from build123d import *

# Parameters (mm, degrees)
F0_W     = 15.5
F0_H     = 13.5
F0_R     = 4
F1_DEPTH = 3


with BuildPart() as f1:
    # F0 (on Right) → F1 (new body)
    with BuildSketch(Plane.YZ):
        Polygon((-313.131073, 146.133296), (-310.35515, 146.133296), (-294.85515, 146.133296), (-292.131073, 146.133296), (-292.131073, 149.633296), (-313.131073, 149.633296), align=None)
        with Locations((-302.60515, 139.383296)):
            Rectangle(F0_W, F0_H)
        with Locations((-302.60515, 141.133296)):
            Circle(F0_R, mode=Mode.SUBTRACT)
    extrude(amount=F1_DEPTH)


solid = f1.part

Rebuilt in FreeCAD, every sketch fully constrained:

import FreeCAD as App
import Part
import Sketcher
from FreeCAD import Vector


def add_polygon(sketch, points):
    """Adds a closed chain of lines whose ends are joined by coincident constraints."""
    first, n = sketch.GeometryCount, len(points)
    for a, b in zip(points, points[1:] + points[:1]):
        sketch.addGeometry(Part.LineSegment(App.Vector(*a, 0), App.Vector(*b, 0)), False)
    for i in range(n):
        sketch.addConstraint(Sketcher.Constraint("Coincident", first + i, 2, first + (i + 1) % n, 1))

doc = App.newDocument("Part")
params = doc.addObject("Spreadsheet::Sheet", "Params")
for row, (alias, value) in enumerate([
    ("sketch1_diameter", "8 mm"),
    ("sketch1_width", "21 mm"),
    ("sketch1_width2", "15.5 mm"),
    ("sketch1_height", "13.5 mm"),
    ("sketch1_height2", "3.5 mm"),
    ("pad1_length", "3 mm"),
], start=1):
    params.set(f"A{row}", alias)
    params.set(f"B{row}", "=" + value)
    params.setAlias(f"B{row}", alias)

body = doc.addObject("PartDesign::Body", "Body")

# Sketch on YZ plane
sketch1 = doc.addObject("Sketcher::SketchObject", "Sketch")
body.addObject(sketch1)
sketch1.AttachmentSupport = (doc.YZ_Plane, [""])
sketch1.MapMode = "FlatFace"
add_polygon(sketch1, [(-313.1, 146.1), (-310.4, 146.1), (-310.4, 132.6), (-294.9, 132.6), (-294.9, 146.1), (-292.1, 146.1), (-292.1, 149.6), (-313.1, 149.6)])  # lines 0-7
sketch1.addGeometry(Part.Circle(Vector(-302.6, 141.1, 0), Vector(0, 0, 1), 4), False)  # 8
sketch1.addConstraint(Sketcher.Constraint("Horizontal", 0))
sketch1.addConstraint(Sketcher.Constraint("Vertical", 1))
sketch1.addConstraint(Sketcher.Constraint("Horizontal", 2))
sketch1.addConstraint(Sketcher.Constraint("Vertical", 3))
sketch1.addConstraint(Sketcher.Constraint("Horizontal", 4))
sketch1.addConstraint(Sketcher.Constraint("Vertical", 5))
sketch1.addConstraint(Sketcher.Constraint("Horizontal", 6))
sketch1.addConstraint(Sketcher.Constraint("Vertical", 7))
sketch1.addConstraint(Sketcher.Constraint("Horizontal", 0, 2, 3, 2))
sketch1.addConstraint(Sketcher.Constraint("Diameter", 8, 8.0))
sketch1.addConstraint(Sketcher.Constraint("DistanceX", 6, 2, 6, 1, 21.0))
sketch1.addConstraint(Sketcher.Constraint("DistanceX", 2, 1, 2, 2, 15.5))
sketch1.addConstraint(Sketcher.Constraint("DistanceY", 1, 2, 1, 1, 13.5))
sketch1.addConstraint(Sketcher.Constraint("DistanceY", 5, 1, 5, 2, 3.5))
sketch1.addConstraint(Sketcher.Constraint("DistanceY", 8, 3, 0, 2, 5.0))
sketch1.addConstraint(Sketcher.Constraint("DistanceX", 0, 2, 8, 3, 7.75))
sketch1.addConstraint(Sketcher.Constraint("DistanceX", 0, 1, 0, 2, 2.775923))
sketch1.addConstraint(Sketcher.Constraint("DistanceX", 8, 3, -1, 1, 302.60515))
sketch1.addConstraint(Sketcher.Constraint("DistanceY", -1, 1, 8, 3, 141.133296))
sketch1.setExpression("Constraints[17]", "Params.sketch1_diameter")
sketch1.setExpression("Constraints[18]", "Params.sketch1_width")
sketch1.setExpression("Constraints[19]", "Params.sketch1_width2")
sketch1.setExpression("Constraints[20]", "Params.sketch1_height")
sketch1.setExpression("Constraints[21]", "Params.sketch1_height2")
pad1 = doc.addObject("PartDesign::Pad", "Pad")
body.addObject(pad1)
pad1.Profile = sketch1
pad1.setExpression("Length", "Params.pad1_length")

doc.recompute()
